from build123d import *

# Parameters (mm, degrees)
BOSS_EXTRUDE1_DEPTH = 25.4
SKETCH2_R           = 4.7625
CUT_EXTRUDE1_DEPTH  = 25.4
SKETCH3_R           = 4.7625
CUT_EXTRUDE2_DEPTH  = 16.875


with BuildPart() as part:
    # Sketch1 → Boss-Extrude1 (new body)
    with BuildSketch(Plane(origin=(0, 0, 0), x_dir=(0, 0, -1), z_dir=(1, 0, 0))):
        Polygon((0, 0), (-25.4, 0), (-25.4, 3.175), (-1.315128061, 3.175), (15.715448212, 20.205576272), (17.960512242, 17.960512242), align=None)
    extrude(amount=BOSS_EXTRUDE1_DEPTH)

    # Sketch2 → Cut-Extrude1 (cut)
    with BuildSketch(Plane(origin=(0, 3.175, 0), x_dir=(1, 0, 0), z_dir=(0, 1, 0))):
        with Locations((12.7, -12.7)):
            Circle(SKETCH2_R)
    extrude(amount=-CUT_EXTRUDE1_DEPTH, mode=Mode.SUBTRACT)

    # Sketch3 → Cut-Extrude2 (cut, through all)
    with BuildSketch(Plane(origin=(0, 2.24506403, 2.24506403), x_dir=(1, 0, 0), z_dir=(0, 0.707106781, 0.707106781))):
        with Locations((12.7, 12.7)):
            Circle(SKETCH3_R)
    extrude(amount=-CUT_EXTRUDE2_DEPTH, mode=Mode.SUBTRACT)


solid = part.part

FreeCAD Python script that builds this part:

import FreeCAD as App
import Part
import Sketcher
Q = App.Units.Quantity

doc = App.newDocument("Part")
params = doc.addObject("Spreadsheet::Sheet", "Params")
for row, (alias, value) in enumerate([
    ("sketch1_height", "1 in"),
    ("sketch1_length", "1 in"),
    ("sketch1_width", "0.125 in"),
    ("sketch1_length2", "0.125 in"),
    ("pad1_length", "1 in"),
    ("sketch2_diameter", "0.375 in"),
    ("pocket1_length", "1 in"),
    ("sketch3_diameter", "0.375 in"),
], start=1):
    params.set(f"A{row}", alias)
    params.set(f"B{row}", "=" + value)
    params.setAlias(f"B{row}", alias)

body = doc.addObject("PartDesign::Body", "Body")

sketch1 = body.newObject("Sketcher::SketchObject", "Sketch")
sketch1.AttachmentSupport = (doc.getObject("YZ_Plane"), [""])
sketch1.MapMode = "FlatFace"
sketch1.addGeometry([
    Part.LineSegment(App.Vector(0, 25.4, 0), App.Vector(0, 0, 0)),
    Part.LineSegment(App.Vector(0, 0, 0), App.Vector(17.960512, -17.960512, 0)),
    Part.LineSegment(App.Vector(17.960512, -17.960512, 0), App.Vector(20.205576, -15.715448, 0)),
    Part.LineSegment(App.Vector(20.205576, -15.715448, 0), App.Vector(3.175, 1.315128, 0)),
    Part.LineSegment(App.Vector(3.175, 1.315128, 0), App.Vector(3.175, 25.4, 0)),
    Part.LineSegment(App.Vector(3.175, 25.4, 0), App.Vector(0, 25.4, 0)),
], False)
sketch1.addConstraint([
    Sketcher.Constraint("Coincident", 0, 2, 1, 1),
    Sketcher.Constraint("Coincident", 1, 2, 2, 1),
    Sketcher.Constraint("Coincident", 2, 2, 3, 1),
    Sketcher.Constraint("Coincident", 3, 2, 4, 1),
    Sketcher.Constraint("Coincident", 4, 2, 5, 1),
    Sketcher.Constraint("Coincident", 5, 2, 0, 1),
    Sketcher.Constraint("Vertical", 0),
    Sketcher.Constraint("Vertical", 4),
    Sketcher.Constraint("Horizontal", 5),
    Sketcher.Constraint("Coincident", 0, 2, -1, 1),
    Sketcher.Constraint("Perpendicular", 1, 2),
    Sketcher.Constraint("Perpendicular", 2, 3),
    Sketcher.Constraint("DistanceY", 0, 2, 0, 1, Q("1 in")),
    Sketcher.Constraint("Distance", 1, Q("1 in")),
    Sketcher.Constraint("Angle", 1, Q("-45 deg")),
    Sketcher.Constraint("DistanceX", 5, 2, 5, 1, Q("0.125 in")),
    Sketcher.Constraint("Distance", 2, Q("0.125 in")),
])
sketch1.setExpression("Constraints[12]", "Params.sketch1_height")
sketch1.setExpression("Constraints[13]", "Params.sketch1_length")
sketch1.setExpression("Constraints[15]", "Params.sketch1_width")
sketch1.setExpression("Constraints[16]", "Params.sketch1_length2")
pad1 = body.newObject("PartDesign::Pad", "Pad")
pad1.Profile = sketch1
pad1.setExpression("Length", "Params.pad1_length")

sketch2 = body.newObject("Sketcher::SketchObject", "Sketch001")
sketch2.AttachmentSupport = (doc.getObject("XZ_Plane"), [""])
sketch2.MapMode = "FlatFace"
sketch2.AttachmentOffset = App.Placement(App.Vector(0, 0, -0.125 * 25.4), App.Rotation())
sketch2.addGeometry(Part.Circle(App.Vector(12.7, 12.7, 0), App.Vector(0, 0, 1), 4.7625), False)
sketch2.addConstraint([
    Sketcher.Constraint("Diameter", 0, Q("0.375 in")),
    Sketcher.Constraint("DistanceX", -1, 1, 0, 3, Q("0.5 in")),
    Sketcher.Constraint("DistanceY", -1, 1, 0, 3, Q("0.5 in")),
])
sketch2.setExpression("Constraints[0]", "Params.sketch2_diameter")
pocket1 = body.newObject("PartDesign::Pocket", "Pocket")
pocket1.Profile = sketch2
pocket1.setExpression("Length", "Params.pocket1_length")
pocket1.Reversed = True

sketch3 = body.newObject("Sketcher::SketchObject", "Sketch002")
sketch3.Placement = App.Placement(App.Vector(0, 2.245064, 2.245064), App.Rotation(App.Vector(1, 0, 0), App.Vector(0, 0.707106781, -0.707106781), App.Vector(0, 0.707106781, 0.707106781), "ZXY"))
sketch3.addGeometry(Part.Circle(App.Vector(12.7, 12.7, 0), App.Vector(0, 0, 1), 4.7625), False)
sketch3.addConstraint([
    Sketcher.Constraint("Diameter", 0, Q("0.375 in")),
    Sketcher.Constraint("DistanceX", -1, 1, 0, 3, Q("0.5 in")),
    Sketcher.Constraint("DistanceY", -1, 1, 0, 3, Q("0.5 in")),
])
sketch3.setExpression("Constraints[0]", "Params.sketch3_diameter")
pocket2 = body.newObject("PartDesign::Pocket", "Pocket001")
pocket2.Profile = sketch3
pocket2.Type = "ThroughAll"

doc.recompute()
